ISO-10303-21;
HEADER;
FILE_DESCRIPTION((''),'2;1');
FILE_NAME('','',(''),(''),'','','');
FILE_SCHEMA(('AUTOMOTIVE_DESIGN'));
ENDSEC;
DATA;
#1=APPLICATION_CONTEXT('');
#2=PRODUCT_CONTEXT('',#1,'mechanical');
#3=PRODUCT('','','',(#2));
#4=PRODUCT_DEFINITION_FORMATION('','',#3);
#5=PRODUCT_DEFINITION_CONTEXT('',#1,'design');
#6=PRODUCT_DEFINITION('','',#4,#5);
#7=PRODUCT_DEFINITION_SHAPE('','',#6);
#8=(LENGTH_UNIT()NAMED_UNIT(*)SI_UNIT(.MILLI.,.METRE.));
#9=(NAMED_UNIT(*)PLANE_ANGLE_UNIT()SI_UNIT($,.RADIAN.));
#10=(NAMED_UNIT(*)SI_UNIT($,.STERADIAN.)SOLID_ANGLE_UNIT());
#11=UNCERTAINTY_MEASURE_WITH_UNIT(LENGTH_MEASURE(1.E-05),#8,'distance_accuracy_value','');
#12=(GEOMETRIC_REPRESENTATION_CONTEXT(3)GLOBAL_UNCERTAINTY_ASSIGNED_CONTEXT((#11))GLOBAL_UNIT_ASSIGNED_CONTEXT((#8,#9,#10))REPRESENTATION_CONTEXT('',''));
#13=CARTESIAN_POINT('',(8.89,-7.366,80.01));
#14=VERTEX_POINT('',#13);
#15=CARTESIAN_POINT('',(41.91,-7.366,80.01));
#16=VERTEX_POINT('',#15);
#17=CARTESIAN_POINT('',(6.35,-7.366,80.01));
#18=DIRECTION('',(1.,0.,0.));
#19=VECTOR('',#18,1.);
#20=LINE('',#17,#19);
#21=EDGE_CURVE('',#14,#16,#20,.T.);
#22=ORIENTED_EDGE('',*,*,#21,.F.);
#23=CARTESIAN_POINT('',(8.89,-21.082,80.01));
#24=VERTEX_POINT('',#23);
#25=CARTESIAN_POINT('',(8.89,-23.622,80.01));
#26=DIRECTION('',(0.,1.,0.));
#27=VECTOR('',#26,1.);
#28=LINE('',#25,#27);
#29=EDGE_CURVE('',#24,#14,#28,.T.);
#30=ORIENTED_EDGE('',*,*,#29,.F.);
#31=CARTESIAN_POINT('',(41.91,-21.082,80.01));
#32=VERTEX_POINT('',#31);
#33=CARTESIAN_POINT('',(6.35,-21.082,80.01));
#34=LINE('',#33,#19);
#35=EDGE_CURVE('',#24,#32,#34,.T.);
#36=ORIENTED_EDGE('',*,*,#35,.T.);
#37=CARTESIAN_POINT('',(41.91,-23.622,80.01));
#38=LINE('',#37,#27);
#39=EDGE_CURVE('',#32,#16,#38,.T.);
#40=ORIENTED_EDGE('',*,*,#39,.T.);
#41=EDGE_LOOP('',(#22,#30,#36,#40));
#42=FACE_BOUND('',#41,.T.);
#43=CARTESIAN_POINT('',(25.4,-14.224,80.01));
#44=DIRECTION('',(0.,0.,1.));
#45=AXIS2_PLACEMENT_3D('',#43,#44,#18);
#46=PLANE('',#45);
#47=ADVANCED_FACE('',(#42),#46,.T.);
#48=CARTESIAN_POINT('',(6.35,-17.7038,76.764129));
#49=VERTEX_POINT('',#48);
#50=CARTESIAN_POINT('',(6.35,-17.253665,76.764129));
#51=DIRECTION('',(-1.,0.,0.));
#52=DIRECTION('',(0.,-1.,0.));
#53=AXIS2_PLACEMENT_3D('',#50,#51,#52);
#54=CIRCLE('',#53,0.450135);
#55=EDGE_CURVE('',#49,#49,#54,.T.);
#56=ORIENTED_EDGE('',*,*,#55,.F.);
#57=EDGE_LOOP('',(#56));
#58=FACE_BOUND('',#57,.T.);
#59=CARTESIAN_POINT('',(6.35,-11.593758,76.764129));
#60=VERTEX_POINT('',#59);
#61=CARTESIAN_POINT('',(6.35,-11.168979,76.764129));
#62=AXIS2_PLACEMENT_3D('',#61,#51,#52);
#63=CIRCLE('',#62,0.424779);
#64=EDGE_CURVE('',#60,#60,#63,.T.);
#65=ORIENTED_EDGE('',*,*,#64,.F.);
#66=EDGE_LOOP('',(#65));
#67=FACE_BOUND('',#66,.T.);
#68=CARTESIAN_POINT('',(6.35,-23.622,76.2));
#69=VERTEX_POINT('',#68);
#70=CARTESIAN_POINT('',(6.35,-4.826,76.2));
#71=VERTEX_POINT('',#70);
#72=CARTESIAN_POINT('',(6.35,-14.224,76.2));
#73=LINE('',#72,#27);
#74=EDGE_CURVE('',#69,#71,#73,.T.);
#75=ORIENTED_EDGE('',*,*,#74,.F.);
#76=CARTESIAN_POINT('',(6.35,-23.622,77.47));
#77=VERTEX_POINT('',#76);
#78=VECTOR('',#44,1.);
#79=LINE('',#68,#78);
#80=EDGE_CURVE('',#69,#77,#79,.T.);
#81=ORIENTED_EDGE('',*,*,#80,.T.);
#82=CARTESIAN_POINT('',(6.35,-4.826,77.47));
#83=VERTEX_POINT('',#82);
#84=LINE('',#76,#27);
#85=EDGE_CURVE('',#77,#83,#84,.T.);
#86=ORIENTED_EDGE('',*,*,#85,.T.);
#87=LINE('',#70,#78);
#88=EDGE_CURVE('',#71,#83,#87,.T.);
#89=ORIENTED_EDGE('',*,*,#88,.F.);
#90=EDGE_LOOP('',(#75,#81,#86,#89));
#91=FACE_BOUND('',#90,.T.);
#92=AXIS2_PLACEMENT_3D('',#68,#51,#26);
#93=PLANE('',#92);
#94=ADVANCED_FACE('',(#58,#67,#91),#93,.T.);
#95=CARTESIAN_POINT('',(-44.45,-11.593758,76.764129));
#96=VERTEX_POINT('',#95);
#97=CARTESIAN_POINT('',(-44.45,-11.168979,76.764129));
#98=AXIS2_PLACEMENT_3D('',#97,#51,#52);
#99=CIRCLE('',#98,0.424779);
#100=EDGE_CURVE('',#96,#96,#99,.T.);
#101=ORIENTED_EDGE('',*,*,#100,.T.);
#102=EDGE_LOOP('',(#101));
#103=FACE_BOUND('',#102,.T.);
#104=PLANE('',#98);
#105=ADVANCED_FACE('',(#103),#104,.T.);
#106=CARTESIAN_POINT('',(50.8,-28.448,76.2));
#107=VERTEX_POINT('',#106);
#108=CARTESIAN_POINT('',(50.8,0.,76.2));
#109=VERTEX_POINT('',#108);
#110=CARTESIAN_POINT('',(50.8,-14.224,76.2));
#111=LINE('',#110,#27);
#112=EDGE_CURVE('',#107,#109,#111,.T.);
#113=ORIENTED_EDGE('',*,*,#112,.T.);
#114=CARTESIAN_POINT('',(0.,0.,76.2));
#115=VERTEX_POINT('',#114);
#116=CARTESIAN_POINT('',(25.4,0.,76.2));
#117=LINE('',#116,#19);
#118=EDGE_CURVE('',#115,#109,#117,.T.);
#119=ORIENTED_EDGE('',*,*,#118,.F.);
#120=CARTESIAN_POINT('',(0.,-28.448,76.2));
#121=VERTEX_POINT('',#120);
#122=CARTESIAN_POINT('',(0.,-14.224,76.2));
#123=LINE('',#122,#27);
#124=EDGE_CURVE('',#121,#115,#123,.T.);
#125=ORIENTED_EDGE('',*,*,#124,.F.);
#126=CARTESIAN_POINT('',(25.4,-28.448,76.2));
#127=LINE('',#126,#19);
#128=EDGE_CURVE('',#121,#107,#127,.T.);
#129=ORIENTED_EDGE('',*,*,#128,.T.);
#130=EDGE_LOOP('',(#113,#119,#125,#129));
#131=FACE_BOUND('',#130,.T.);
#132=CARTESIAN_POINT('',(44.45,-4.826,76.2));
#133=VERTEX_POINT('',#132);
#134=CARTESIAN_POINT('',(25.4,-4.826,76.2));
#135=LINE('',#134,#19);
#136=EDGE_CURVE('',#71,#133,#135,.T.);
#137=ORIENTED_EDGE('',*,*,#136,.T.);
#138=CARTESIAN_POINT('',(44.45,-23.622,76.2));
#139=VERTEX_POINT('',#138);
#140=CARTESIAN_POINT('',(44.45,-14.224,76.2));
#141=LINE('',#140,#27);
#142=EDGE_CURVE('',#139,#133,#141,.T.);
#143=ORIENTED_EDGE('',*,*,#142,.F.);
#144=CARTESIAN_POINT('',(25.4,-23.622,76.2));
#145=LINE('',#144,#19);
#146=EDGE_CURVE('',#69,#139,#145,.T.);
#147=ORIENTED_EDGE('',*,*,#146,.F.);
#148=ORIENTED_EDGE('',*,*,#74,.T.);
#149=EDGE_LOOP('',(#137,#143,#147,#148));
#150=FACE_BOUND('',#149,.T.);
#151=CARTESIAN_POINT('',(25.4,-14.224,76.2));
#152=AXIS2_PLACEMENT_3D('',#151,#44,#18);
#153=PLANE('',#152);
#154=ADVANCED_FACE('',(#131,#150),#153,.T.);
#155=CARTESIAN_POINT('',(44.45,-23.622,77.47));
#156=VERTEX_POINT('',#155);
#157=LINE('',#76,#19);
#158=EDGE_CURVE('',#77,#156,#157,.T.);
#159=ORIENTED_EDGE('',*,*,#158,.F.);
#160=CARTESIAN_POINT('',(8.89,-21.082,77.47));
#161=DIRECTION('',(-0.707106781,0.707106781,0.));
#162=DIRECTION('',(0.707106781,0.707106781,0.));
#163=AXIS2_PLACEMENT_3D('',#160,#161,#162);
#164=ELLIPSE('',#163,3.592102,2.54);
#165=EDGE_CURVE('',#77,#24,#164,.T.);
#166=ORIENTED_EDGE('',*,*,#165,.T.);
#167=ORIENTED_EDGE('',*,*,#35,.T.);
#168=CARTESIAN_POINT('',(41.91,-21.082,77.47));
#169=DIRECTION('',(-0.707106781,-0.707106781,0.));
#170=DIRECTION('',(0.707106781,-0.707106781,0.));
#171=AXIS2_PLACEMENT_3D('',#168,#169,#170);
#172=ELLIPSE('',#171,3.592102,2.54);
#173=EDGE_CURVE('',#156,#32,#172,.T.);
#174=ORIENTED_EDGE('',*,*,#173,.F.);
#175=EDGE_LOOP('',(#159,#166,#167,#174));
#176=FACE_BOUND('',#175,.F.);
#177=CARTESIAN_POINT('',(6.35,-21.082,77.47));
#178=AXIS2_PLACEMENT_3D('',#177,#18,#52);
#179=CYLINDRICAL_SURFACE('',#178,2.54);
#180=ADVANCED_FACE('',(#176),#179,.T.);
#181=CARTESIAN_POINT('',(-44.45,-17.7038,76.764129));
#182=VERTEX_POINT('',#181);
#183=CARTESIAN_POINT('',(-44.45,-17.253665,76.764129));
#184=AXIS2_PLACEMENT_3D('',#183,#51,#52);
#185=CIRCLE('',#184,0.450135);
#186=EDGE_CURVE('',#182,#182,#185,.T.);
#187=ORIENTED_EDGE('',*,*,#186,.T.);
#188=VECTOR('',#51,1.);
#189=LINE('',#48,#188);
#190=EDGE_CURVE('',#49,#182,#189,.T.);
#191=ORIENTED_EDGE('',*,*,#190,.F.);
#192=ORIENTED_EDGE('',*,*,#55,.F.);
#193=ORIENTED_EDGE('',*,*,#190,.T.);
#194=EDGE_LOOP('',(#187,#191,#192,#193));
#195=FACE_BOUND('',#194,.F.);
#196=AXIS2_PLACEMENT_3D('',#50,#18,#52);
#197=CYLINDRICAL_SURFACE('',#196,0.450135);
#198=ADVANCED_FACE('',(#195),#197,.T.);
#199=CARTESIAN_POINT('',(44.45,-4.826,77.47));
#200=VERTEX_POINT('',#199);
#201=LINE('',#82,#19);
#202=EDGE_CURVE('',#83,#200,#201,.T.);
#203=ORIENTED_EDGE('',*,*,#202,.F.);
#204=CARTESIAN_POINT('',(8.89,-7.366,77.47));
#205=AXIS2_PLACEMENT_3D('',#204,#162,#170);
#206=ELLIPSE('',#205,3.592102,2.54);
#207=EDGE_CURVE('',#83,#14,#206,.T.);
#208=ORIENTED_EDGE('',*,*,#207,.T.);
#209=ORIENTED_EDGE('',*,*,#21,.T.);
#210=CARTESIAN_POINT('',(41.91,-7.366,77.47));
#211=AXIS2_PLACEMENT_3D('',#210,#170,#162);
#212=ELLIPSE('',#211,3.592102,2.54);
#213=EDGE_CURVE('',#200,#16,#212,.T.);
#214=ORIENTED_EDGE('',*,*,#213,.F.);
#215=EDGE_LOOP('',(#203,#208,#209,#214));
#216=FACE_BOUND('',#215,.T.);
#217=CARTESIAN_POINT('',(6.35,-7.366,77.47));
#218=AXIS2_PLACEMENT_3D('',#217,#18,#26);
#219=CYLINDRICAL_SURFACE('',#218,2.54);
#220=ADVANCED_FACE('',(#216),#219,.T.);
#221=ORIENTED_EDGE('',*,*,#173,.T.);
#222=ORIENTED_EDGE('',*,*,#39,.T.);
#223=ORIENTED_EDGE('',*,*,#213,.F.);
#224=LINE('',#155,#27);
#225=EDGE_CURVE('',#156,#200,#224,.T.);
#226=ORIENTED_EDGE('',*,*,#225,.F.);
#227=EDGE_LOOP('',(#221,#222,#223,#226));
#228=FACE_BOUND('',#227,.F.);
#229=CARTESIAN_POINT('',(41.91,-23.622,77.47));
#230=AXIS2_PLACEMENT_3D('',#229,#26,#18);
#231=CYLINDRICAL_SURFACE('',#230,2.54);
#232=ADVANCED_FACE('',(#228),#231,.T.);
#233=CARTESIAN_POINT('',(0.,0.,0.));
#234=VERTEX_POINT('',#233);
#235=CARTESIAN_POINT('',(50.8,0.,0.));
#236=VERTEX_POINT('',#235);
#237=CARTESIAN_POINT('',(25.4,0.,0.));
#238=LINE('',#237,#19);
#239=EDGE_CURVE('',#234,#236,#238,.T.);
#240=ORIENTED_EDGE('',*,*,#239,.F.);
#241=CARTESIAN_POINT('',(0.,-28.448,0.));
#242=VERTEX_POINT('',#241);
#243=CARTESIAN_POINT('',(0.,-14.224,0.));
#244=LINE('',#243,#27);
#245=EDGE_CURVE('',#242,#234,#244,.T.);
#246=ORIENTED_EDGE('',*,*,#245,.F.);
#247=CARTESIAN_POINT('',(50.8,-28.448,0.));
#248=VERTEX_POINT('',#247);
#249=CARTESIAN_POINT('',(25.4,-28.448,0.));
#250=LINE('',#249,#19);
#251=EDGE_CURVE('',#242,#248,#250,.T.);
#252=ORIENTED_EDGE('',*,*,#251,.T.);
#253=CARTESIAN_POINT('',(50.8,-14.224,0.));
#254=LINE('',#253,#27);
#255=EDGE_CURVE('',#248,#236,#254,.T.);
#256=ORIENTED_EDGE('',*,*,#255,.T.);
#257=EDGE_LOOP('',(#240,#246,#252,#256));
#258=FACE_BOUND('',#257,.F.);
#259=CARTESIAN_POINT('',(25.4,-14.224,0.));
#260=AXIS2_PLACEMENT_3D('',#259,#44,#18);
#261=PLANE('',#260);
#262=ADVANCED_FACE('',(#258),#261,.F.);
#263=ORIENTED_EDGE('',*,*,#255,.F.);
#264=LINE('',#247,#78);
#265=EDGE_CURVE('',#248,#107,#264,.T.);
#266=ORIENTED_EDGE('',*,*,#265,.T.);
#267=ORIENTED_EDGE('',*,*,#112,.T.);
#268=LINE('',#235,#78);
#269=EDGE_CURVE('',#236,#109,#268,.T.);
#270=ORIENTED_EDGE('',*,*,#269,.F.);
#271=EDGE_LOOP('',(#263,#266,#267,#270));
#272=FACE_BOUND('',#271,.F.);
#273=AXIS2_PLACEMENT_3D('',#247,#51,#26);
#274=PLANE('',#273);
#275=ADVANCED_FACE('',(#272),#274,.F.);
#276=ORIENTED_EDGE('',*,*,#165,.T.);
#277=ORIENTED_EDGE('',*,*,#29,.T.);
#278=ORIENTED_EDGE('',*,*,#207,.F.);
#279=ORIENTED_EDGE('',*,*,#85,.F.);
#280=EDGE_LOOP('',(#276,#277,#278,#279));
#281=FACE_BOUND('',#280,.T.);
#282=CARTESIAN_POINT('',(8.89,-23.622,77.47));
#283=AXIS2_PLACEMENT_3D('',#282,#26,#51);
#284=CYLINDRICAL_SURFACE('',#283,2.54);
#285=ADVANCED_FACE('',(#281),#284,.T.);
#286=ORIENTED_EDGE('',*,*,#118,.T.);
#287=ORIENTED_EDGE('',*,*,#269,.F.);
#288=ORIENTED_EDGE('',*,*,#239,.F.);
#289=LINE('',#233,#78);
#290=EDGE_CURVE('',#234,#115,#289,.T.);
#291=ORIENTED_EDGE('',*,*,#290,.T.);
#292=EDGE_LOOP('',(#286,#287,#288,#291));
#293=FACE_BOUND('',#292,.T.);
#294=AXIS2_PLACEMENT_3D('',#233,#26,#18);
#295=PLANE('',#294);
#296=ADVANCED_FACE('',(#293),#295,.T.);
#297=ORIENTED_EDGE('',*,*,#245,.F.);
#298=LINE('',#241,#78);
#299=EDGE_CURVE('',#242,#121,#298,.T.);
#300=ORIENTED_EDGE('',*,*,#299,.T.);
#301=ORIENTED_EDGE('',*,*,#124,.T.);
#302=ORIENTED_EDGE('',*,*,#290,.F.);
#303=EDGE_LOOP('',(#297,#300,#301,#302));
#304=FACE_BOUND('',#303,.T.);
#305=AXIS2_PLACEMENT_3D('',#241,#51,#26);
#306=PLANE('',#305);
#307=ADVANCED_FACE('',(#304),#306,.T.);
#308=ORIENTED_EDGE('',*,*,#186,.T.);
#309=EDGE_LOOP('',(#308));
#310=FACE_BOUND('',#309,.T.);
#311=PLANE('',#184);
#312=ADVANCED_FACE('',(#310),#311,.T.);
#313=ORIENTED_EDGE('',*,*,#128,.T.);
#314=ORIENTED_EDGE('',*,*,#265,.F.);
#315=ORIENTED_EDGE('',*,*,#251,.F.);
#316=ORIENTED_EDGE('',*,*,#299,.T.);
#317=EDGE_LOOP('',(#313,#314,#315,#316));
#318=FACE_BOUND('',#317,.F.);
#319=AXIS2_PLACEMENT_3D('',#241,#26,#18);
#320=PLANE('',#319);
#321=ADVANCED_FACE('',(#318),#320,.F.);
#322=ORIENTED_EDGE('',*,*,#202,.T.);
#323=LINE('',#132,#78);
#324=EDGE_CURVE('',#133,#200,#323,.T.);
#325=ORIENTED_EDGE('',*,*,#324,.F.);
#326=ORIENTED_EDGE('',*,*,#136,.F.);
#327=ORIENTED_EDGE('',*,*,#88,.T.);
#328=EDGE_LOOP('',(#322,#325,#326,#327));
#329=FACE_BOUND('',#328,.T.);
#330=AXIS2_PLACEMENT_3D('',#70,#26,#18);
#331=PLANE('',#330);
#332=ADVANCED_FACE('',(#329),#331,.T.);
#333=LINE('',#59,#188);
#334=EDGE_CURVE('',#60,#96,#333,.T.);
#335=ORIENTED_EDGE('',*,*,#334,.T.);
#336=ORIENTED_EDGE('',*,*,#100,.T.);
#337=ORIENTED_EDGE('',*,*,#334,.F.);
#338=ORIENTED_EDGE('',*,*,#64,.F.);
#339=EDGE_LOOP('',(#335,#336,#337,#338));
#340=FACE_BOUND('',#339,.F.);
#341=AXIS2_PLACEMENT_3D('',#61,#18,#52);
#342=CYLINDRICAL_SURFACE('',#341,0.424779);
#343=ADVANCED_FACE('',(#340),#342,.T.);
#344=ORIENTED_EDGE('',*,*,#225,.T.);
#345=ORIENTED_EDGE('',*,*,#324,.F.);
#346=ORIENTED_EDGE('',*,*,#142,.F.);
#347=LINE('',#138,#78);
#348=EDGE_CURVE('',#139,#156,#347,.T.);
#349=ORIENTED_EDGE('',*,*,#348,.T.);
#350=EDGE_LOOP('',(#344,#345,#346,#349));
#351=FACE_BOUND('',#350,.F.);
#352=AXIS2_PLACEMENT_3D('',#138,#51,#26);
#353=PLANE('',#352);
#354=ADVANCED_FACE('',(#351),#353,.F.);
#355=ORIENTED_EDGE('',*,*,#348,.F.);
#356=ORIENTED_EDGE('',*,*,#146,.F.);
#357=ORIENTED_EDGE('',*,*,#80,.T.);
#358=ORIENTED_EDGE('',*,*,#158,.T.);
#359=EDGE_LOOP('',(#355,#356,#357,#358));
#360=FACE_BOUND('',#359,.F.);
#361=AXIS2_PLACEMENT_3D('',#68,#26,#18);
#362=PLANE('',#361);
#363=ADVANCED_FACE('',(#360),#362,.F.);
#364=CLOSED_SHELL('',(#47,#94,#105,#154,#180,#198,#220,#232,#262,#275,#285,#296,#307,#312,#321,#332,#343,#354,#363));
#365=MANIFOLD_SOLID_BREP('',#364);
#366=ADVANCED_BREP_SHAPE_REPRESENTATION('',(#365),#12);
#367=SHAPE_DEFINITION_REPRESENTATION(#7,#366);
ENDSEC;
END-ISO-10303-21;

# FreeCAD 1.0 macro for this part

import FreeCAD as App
import Part
import Sketcher

V = App.Vector
Q = App.Units.Quantity


def edges_at(feature, points):
    """Names of the edges that pass closest to the given points."""
    edges = feature.Shape.Edges
    near = lambda p: min(range(len(edges)), key=lambda i: edges[i].distToShape(Part.Vertex(*p))[0])
    return sorted({f"Edge{near(p) + 1}" for p in points})


def add_polygon(sketch, points):
    """Adds a closed chain of lines whose ends are joined by coincident constraints."""
    first, n = sketch.GeometryCount, len(points)
    for a, b in zip(points, points[1:] + points[:1]):
        sketch.addGeometry(Part.LineSegment(App.Vector(*a, 0), App.Vector(*b, 0)), False)
    for i in range(n):
        sketch.addConstraint(Sketcher.Constraint("Coincident", first + i, 2, first + (i + 1) % n, 1))

doc = App.newDocument("Part")
body = doc.addObject("PartDesign::Body", "Body")

# Sketch on XY plane
sketch1 = body.newObject("Sketcher::SketchObject", "Sketch")
sketch1.AttachmentSupport = (doc.getObject("XY_Plane"), [""])
sketch1.MapMode = "FlatFace"
add_polygon(sketch1, [(0, 0), (0, -28.448), (50.8, -28.448), (50.8, 0)])  # lines 0-3
sketch1.addConstraint(Sketcher.Constraint("Vertical", 0))
sketch1.addConstraint(Sketcher.Constraint("Horizontal", 1))
sketch1.addConstraint(Sketcher.Constraint("Vertical", 2))
sketch1.addConstraint(Sketcher.Constraint("Horizontal", 3))
sketch1.addConstraint(Sketcher.Constraint("Coincident", 3, 2, -1, 1))
sketch1.addConstraint(Sketcher.Constraint("DistanceX", 1, 1, 1, 2, Q("2 in")))
sketch1.addConstraint(Sketcher.Constraint("DistanceY", 0, 2, 0, 1, Q("1.12 in")))
pad1 = body.newObject("PartDesign::Pad", "Pad")
pad1.Profile = sketch1
pad1.Length = Q("3 in")

# Sketch on XY plane
sketch2 = body.newObject("Sketcher::SketchObject", "Sketch001")
sketch2.AttachmentSupport = (doc.getObject("XY_Plane"), [""])
sketch2.MapMode = "FlatFace"
sketch2.AttachmentOffset = App.Placement(V(0, 0, 3 * 25.4), App.Rotation())
add_polygon(sketch2, [(6.35, -4.826), (6.35, -23.622), (44.45, -23.622), (44.45, -4.826)])  # lines 0-3
sketch2.addConstraint(Sketcher.Constraint("Vertical", 0))
sketch2.addConstraint(Sketcher.Constraint("Horizontal", 1))
sketch2.addConstraint(Sketcher.Constraint("Vertical", 2))
sketch2.addConstraint(Sketcher.Constraint("Horizontal", 3))
sketch2.addConstraint(Sketcher.Constraint("DistanceX", 1, 1, 1, 2, Q("1.5 in")))
sketch2.addConstraint(Sketcher.Constraint("DistanceY", 0, 2, 0, 1, Q("0.74 in")))
sketch2.addConstraint(Sketcher.Constraint("DistanceX", -1, 1, 0, 2, Q("0.25 in")))
sketch2.addConstraint(Sketcher.Constraint("DistanceY", 0, 2, -1, 1, Q("0.93 in")))
pad2 = body.newObject("PartDesign::Pad", "Pad001")
pad2.Profile = sketch2
pad2.Length = Q("0.15 in")
doc.recompute()

fillet = body.newObject("PartDesign::Fillet", "Fillet")
fillet.Base = (pad2, edges_at(pad2, [
    (25.4, -4.826, 80.01),
    (25.4, -23.622, 80.01),
    (6.35, -14.224, 80.01),
    (44.45, -14.224, 80.01),
]))
fillet.Radius = Q("0.1 in")

# Sketch on YZ plane
sketch3 = body.newObject("Sketcher::SketchObject", "Sketch002")
sketch3.AttachmentSupport = (doc.getObject("YZ_Plane"), [""])
sketch3.MapMode = "FlatFace"
sketch3.AttachmentOffset = App.Placement(V(0, 0, 0.25 * 25.4), App.Rotation())
sketch3.addGeometry(Part.Circle(V(-11.168979, 76.764129, 0), V(0, 0, 1), 0.424779), False)
sketch3.addGeometry(Part.Circle(V(-17.253665, 76.764129, 0), V(0, 0, 1), 0.450135), False)
sketch3.addConstraint(Sketcher.Constraint("Horizontal", 0, 3, 1, 3))
sketch3.addConstraint(Sketcher.Constraint("Diameter", 0, Q("0.849558 mm")))
sketch3.addConstraint(Sketcher.Constraint("Diameter", 1, Q("0.90027 mm")))
sketch3.addConstraint(Sketcher.Constraint("DistanceX", 0, 3, -1, 1, Q("11.168979 mm")))
sketch3.addConstraint(Sketcher.Constraint("DistanceY", -1, 1, 0, 3, Q("76.764129 mm")))
sketch3.addConstraint(Sketcher.Constraint("DistanceX", 1, 3, -1, 1, Q("17.253665 mm")))
pad3 = body.newObject("PartDesign::Pad", "Pad002")
pad3.Profile = sketch3
pad3.Length = Q("2 in")
pad3.Reversed = True

doc.recompute()
